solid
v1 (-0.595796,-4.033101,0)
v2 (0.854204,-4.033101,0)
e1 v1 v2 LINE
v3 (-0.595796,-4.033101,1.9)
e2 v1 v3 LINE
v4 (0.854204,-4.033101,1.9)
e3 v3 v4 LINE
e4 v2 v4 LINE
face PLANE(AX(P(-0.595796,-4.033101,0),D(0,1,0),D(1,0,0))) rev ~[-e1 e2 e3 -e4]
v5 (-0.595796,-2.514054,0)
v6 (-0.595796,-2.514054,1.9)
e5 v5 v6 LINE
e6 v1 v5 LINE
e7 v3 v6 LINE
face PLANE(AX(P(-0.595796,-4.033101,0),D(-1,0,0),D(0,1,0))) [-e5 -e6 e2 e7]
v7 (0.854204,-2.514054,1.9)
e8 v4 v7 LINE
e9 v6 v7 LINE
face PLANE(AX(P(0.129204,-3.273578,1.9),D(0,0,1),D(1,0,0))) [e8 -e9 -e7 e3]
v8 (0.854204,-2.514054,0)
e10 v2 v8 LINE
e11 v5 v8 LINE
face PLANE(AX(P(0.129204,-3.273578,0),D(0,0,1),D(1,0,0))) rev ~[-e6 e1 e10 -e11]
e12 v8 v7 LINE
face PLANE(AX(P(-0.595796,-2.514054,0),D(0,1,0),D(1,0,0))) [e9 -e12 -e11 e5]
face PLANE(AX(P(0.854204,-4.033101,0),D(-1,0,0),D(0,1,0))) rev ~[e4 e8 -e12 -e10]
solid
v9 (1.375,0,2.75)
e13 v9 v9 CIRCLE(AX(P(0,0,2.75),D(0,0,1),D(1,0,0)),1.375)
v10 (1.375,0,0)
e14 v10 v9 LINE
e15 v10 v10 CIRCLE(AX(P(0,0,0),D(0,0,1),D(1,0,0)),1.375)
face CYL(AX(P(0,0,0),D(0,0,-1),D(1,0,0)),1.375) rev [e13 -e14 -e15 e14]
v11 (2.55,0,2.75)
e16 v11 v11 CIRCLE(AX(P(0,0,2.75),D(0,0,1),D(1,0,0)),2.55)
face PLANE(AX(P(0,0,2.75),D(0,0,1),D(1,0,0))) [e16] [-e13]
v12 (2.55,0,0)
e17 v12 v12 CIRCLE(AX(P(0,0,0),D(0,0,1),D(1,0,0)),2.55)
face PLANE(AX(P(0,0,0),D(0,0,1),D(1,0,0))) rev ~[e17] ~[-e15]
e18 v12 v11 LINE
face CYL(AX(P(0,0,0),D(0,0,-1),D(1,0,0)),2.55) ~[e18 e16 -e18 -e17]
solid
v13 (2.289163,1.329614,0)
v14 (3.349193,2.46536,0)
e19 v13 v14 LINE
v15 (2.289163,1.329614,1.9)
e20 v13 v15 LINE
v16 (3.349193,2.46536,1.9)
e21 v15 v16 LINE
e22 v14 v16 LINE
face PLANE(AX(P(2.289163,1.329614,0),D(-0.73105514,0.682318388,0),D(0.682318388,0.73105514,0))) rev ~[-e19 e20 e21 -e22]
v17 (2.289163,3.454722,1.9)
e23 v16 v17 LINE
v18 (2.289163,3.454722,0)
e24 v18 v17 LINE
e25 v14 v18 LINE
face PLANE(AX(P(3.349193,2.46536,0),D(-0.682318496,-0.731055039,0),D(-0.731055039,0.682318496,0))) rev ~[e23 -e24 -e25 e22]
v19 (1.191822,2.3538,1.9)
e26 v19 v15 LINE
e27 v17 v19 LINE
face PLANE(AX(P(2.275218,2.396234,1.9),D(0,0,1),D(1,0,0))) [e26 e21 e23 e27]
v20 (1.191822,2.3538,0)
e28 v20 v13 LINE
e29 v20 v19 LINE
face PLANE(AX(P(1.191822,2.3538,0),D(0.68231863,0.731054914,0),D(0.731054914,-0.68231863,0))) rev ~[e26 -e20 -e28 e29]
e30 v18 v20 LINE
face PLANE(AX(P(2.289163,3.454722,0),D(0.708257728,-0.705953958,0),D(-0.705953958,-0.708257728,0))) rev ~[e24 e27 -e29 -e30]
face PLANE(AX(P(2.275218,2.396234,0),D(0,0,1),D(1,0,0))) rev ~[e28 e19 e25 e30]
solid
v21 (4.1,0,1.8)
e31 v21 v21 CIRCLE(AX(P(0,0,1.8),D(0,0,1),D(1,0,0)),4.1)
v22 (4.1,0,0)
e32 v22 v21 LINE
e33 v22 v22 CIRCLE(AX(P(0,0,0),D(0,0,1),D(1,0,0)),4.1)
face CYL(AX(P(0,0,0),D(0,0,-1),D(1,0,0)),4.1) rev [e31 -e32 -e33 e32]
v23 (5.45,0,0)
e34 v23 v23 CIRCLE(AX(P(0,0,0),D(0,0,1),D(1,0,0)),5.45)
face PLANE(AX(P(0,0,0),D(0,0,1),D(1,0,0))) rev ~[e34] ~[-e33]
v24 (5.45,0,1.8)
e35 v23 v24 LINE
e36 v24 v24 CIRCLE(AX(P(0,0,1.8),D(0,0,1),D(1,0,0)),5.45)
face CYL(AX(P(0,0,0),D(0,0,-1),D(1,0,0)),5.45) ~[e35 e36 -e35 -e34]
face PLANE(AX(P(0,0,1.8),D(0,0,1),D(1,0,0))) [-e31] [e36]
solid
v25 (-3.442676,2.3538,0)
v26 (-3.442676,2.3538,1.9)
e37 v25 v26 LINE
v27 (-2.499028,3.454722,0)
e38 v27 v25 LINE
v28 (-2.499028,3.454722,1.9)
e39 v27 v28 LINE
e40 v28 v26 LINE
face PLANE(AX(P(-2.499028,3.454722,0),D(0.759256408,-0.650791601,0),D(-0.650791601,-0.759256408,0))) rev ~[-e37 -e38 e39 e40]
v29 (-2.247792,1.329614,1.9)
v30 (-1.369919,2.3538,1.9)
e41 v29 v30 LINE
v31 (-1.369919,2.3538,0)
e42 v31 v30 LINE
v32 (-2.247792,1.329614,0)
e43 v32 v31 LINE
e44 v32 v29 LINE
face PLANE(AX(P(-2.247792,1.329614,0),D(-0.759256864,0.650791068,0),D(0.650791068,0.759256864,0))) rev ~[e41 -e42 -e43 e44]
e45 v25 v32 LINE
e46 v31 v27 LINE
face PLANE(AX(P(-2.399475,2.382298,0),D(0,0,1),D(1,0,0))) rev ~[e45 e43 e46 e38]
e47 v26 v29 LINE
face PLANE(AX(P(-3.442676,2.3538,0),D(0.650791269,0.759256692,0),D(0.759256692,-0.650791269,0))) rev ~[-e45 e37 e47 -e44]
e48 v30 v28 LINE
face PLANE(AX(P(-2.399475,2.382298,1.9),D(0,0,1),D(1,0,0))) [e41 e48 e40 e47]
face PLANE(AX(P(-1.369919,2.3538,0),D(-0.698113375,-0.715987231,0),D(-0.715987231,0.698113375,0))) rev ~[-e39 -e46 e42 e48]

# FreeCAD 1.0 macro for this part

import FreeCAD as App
import Part
import Sketcher

V = App.Vector


def add_polygon(sketch, points):
    """Adds a closed chain of lines whose ends are joined by coincident constraints."""
    first, n = sketch.GeometryCount, len(points)
    for a, b in zip(points, points[1:] + points[:1]):
        sketch.addGeometry(Part.LineSegment(App.Vector(*a, 0), App.Vector(*b, 0)), False)
    for i in range(n):
        sketch.addConstraint(Sketcher.Constraint("Coincident", first + i, 2, first + (i + 1) % n, 1))

doc = App.newDocument("Part")
body = doc.addObject("PartDesign::Body", "Body")

sketch1 = body.newObject("Sketcher::SketchObject", "Sketch")
sketch1.AttachmentSupport = (doc.getObject("XY_Plane"), [""])
sketch1.MapMode = "FlatFace"
sketch1.addGeometry(Part.Circle(V(0, 0, 0), V(0, 0, 1), 2.5), False)
sketch1.addGeometry(Part.Circle(V(0, 0, 0), V(0, 0, 1), 1.4), False)
sketch1.addConstraint(Sketcher.Constraint("Coincident", 0, 3, -1, 1))
sketch1.addConstraint(Sketcher.Constraint("Coincident", 1, 3, -1, 1))
sketch1.addConstraint(Sketcher.Constraint("Diameter", 0, 5.1))
sketch1.addConstraint(Sketcher.Constraint("Diameter", 1, 2.75))
pad1 = body.newObject("PartDesign::Pad", "Pad")
pad1.Profile = sketch1
pad1.Length = 2.75
body2 = doc.addObject("PartDesign::Body", "Body001")

sketch2 = body2.newObject("Sketcher::SketchObject", "Sketch001")
sketch2.AttachmentSupport = (doc.getObject("XY_Plane001"), [""])
sketch2.MapMode = "FlatFace"
sketch2.addGeometry(Part.Circle(V(0, 0, 0), V(0, 0, 1), 5.5), False)
sketch2.addGeometry(Part.Circle(V(0, 0, 0), V(0, 0, 1), 4.1), False)
sketch2.addConstraint(Sketcher.Constraint("Coincident", 0, 3, -1, 1))
sketch2.addConstraint(Sketcher.Constraint("Coincident", 1, 3, -1, 1))
sketch2.addConstraint(Sketcher.Constraint("Diameter", 0, 10.9))
sketch2.addConstraint(Sketcher.Constraint("Diameter", 1, 8.2))
pad2 = body2.newObject("PartDesign::Pad", "Pad001")
pad2.Profile = sketch2
pad2.Length = 1.8
body3 = doc.addObject("PartDesign::Body", "Body002")
body3.AllowCompound = True

sketch3 = body3.newObject("Sketcher::SketchObject", "Sketch002")
sketch3.AttachmentSupport = (doc.getObject("XY_Plane002"), [""])
sketch3.MapMode = "FlatFace"
add_polygon(sketch3, [(-0.6, -2.5), (-0.6, -4), (0.9, -4), (0.9, -2.5)])
add_polygon(sketch3, [(2.3, 3.5), (1.2, 2.4), (2.3, 1.3), (3.3, 2.5)])
add_polygon(sketch3, [(-2.2, 1.3), (-1.4, 2.4), (-2.5, 3.5), (-3.4, 2.4)])
sketch3.addConstraint(Sketcher.Constraint("Vertical", 0))
sketch3.addConstraint(Sketcher.Constraint("Horizontal", 1))
sketch3.addConstraint(Sketcher.Constraint("Vertical", 2))
sketch3.addConstraint(Sketcher.Constraint("Horizontal", 3))
sketch3.addConstraint(Sketcher.Constraint("Perpendicular", 5, 6))
sketch3.addConstraint(Sketcher.Constraint("Perpendicular", 6, 7))
sketch3.addConstraint(Sketcher.Constraint("Parallel", 8, 10))
sketch3.addConstraint(Sketcher.Constraint("Perpendicular", 10, 11))
sketch3.addConstraint(Sketcher.Constraint("Horizontal", 4, 2, 8, 2))
sketch3.addConstraint(Sketcher.Constraint("Horizontal", 7, 2, 9, 2))
sketch3.addConstraint(Sketcher.Constraint("Horizontal", 8, 2, 10, 2))
sketch3.addConstraint(Sketcher.Constraint("Horizontal", 5, 2, 11, 2))
sketch3.addConstraint(Sketcher.Constraint("Vertical", 5, 2, 7, 2))
sketch3.addConstraint(Sketcher.Constraint("Equal", 7, 10))
sketch3.addConstraint(Sketcher.Constraint("DistanceX", 1, 1, 1, 2, 1.45))
sketch3.addConstraint(Sketcher.Constraint("Distance", 7, 1.45))
sketch3.addConstraint(Sketcher.Constraint("DistanceY", 0, 2, -1, 1, 4.033101))
sketch3.addConstraint(Sketcher.Constraint("DistanceY", -1, 1, 4, 2, 2.3538))
sketch3.addConstraint(Sketcher.Constraint("Distance", 4, 1.554409))
sketch3.addConstraint(Sketcher.Constraint("Distance", 6, 1.553571))
sketch3.addConstraint(Sketcher.Constraint("DistanceY", 0, 2, 0, 1, 1.519047))
sketch3.addConstraint(Sketcher.Constraint("DistanceX", -1, 1, 4, 2, 1.191822))
sketch3.addConstraint(Sketcher.Constraint("DistanceX", 8, 2, -1, 1, 1.369919))
sketch3.addConstraint(Sketcher.Constraint("DistanceX", 2, 2, 5, 2, 1.434959))
pad3 = body3.newObject("PartDesign::Pad", "Pad002")
pad3.Profile = sketch3
pad3.Length = 1.9

doc.recompute()
